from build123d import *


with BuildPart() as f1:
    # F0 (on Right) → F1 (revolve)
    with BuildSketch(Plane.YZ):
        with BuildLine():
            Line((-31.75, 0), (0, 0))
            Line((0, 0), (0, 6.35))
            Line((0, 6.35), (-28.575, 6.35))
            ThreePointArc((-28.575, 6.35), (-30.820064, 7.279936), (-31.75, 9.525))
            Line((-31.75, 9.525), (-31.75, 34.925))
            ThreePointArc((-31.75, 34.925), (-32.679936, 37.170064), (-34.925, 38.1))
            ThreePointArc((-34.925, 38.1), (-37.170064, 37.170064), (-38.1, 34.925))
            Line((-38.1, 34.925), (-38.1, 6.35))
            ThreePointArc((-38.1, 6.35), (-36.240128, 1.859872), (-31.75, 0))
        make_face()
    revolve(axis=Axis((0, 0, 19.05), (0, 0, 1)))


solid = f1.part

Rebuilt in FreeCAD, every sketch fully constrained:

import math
import FreeCAD as App
import Part
import Sketcher
from FreeCAD import Vector
Q = App.Units.Quantity

doc = App.newDocument("Part")
body = doc.addObject("PartDesign::Body", "Body")

# Sketch on YZ plane
sketch1 = body.newObject("Sketcher::SketchObject", "Sketch")
sketch1.AttachmentSupport = (doc.getObject("YZ_Plane"), [""])
sketch1.MapMode = "FlatFace"
sketch1.addGeometry(Part.LineSegment(Vector(-31.75, 0, 0), Vector(0, 0, 0)), False)
sketch1.addGeometry(Part.LineSegment(Vector(0, 0, 0), Vector(0, 6.35, 0)), False)
sketch1.addGeometry(Part.LineSegment(Vector(0, 6.35, 0), Vector(-28.575, 6.35, 0)), False)
sketch1.addGeometry(Part.ArcOfCircle(Part.Circle(Vector(-28.575, 9.525, 0), Vector(0, 0, 1), 3.175), math.radians(-179.999998), math.radians(-90.000002)), False)
sketch1.addGeometry(Part.LineSegment(Vector(-31.75, 9.525, 0), Vector(-31.75, 34.925, 0)), False)
sketch1.addGeometry(Part.ArcOfCircle(Part.Circle(Vector(-34.925, 34.925, 0), Vector(0, 0, 1), 3.175), math.radians(0.000002), math.radians(89.999998)), False)
sketch1.addGeometry(Part.ArcOfCircle(Part.Circle(Vector(-34.925, 34.925, 0), Vector(0, 0, 1), 3.175), math.radians(90.000002), math.radians(179.999998)), False)
sketch1.addGeometry(Part.LineSegment(Vector(-38.1, 34.925, 0), Vector(-38.1, 6.35, 0)), False)
sketch1.addGeometry(Part.ArcOfCircle(Part.Circle(Vector(-31.75, 6.35, 0), Vector(0, 0, 1), 6.35), math.radians(-179.999998), math.radians(-90.000002)), False)
sketch1.addConstraint(Sketcher.Constraint("Coincident", 0, 2, 1, 1))
sketch1.addConstraint(Sketcher.Constraint("Coincident", 1, 2, 2, 1))
sketch1.addConstraint(Sketcher.Constraint("Tangent", 2, 2, 3, 2))
sketch1.addConstraint(Sketcher.Constraint("Tangent", 3, 1, 4, 1))
sketch1.addConstraint(Sketcher.Constraint("Tangent", 4, 2, 5, 1))
sketch1.addConstraint(Sketcher.Constraint("Tangent", 5, 2, 6, 1))
sketch1.addConstraint(Sketcher.Constraint("Tangent", 6, 2, 7, 1))
sketch1.addConstraint(Sketcher.Constraint("Tangent", 7, 2, 8, 1))
sketch1.addConstraint(Sketcher.Constraint("Tangent", 8, 2, 0, 1))
sketch1.addConstraint(Sketcher.Constraint("Horizontal", 0))
sketch1.addConstraint(Sketcher.Constraint("Vertical", 1))
sketch1.addConstraint(Sketcher.Constraint("Horizontal", 2))
sketch1.addConstraint(Sketcher.Constraint("Vertical", 4))
sketch1.addConstraint(Sketcher.Constraint("Vertical", 7))
sketch1.addConstraint(Sketcher.Constraint("Coincident", 0, 2, -1, 1))
sketch1.addConstraint(Sketcher.Constraint("Equal", 3, 5))
sketch1.addConstraint(Sketcher.Constraint("Equal", 5, 6))
sketch1.addConstraint(Sketcher.Constraint("Horizontal", 8, 3, 1, 2))
sketch1.addConstraint(Sketcher.Constraint("Vertical", 8, 3, 3, 1))
sketch1.addConstraint(Sketcher.Constraint("Vertical", 6, 3, 5, 2))
sketch1.addConstraint(Sketcher.Constraint("Equal", 2, 7))
sketch1.addConstraint(Sketcher.Constraint("DistanceY", 4, 1, 4, 2, Q("1 in")))
sketch1.addConstraint(Sketcher.Constraint("Radius", 8, Q("0.25 in")))
revolution = body.newObject("PartDesign::Revolution", "Revolution")
revolution.Profile = sketch1
revolution.ReferenceAxis = (sketch1, ["V_Axis"])
revolution.Angle = 360

doc.recompute()
